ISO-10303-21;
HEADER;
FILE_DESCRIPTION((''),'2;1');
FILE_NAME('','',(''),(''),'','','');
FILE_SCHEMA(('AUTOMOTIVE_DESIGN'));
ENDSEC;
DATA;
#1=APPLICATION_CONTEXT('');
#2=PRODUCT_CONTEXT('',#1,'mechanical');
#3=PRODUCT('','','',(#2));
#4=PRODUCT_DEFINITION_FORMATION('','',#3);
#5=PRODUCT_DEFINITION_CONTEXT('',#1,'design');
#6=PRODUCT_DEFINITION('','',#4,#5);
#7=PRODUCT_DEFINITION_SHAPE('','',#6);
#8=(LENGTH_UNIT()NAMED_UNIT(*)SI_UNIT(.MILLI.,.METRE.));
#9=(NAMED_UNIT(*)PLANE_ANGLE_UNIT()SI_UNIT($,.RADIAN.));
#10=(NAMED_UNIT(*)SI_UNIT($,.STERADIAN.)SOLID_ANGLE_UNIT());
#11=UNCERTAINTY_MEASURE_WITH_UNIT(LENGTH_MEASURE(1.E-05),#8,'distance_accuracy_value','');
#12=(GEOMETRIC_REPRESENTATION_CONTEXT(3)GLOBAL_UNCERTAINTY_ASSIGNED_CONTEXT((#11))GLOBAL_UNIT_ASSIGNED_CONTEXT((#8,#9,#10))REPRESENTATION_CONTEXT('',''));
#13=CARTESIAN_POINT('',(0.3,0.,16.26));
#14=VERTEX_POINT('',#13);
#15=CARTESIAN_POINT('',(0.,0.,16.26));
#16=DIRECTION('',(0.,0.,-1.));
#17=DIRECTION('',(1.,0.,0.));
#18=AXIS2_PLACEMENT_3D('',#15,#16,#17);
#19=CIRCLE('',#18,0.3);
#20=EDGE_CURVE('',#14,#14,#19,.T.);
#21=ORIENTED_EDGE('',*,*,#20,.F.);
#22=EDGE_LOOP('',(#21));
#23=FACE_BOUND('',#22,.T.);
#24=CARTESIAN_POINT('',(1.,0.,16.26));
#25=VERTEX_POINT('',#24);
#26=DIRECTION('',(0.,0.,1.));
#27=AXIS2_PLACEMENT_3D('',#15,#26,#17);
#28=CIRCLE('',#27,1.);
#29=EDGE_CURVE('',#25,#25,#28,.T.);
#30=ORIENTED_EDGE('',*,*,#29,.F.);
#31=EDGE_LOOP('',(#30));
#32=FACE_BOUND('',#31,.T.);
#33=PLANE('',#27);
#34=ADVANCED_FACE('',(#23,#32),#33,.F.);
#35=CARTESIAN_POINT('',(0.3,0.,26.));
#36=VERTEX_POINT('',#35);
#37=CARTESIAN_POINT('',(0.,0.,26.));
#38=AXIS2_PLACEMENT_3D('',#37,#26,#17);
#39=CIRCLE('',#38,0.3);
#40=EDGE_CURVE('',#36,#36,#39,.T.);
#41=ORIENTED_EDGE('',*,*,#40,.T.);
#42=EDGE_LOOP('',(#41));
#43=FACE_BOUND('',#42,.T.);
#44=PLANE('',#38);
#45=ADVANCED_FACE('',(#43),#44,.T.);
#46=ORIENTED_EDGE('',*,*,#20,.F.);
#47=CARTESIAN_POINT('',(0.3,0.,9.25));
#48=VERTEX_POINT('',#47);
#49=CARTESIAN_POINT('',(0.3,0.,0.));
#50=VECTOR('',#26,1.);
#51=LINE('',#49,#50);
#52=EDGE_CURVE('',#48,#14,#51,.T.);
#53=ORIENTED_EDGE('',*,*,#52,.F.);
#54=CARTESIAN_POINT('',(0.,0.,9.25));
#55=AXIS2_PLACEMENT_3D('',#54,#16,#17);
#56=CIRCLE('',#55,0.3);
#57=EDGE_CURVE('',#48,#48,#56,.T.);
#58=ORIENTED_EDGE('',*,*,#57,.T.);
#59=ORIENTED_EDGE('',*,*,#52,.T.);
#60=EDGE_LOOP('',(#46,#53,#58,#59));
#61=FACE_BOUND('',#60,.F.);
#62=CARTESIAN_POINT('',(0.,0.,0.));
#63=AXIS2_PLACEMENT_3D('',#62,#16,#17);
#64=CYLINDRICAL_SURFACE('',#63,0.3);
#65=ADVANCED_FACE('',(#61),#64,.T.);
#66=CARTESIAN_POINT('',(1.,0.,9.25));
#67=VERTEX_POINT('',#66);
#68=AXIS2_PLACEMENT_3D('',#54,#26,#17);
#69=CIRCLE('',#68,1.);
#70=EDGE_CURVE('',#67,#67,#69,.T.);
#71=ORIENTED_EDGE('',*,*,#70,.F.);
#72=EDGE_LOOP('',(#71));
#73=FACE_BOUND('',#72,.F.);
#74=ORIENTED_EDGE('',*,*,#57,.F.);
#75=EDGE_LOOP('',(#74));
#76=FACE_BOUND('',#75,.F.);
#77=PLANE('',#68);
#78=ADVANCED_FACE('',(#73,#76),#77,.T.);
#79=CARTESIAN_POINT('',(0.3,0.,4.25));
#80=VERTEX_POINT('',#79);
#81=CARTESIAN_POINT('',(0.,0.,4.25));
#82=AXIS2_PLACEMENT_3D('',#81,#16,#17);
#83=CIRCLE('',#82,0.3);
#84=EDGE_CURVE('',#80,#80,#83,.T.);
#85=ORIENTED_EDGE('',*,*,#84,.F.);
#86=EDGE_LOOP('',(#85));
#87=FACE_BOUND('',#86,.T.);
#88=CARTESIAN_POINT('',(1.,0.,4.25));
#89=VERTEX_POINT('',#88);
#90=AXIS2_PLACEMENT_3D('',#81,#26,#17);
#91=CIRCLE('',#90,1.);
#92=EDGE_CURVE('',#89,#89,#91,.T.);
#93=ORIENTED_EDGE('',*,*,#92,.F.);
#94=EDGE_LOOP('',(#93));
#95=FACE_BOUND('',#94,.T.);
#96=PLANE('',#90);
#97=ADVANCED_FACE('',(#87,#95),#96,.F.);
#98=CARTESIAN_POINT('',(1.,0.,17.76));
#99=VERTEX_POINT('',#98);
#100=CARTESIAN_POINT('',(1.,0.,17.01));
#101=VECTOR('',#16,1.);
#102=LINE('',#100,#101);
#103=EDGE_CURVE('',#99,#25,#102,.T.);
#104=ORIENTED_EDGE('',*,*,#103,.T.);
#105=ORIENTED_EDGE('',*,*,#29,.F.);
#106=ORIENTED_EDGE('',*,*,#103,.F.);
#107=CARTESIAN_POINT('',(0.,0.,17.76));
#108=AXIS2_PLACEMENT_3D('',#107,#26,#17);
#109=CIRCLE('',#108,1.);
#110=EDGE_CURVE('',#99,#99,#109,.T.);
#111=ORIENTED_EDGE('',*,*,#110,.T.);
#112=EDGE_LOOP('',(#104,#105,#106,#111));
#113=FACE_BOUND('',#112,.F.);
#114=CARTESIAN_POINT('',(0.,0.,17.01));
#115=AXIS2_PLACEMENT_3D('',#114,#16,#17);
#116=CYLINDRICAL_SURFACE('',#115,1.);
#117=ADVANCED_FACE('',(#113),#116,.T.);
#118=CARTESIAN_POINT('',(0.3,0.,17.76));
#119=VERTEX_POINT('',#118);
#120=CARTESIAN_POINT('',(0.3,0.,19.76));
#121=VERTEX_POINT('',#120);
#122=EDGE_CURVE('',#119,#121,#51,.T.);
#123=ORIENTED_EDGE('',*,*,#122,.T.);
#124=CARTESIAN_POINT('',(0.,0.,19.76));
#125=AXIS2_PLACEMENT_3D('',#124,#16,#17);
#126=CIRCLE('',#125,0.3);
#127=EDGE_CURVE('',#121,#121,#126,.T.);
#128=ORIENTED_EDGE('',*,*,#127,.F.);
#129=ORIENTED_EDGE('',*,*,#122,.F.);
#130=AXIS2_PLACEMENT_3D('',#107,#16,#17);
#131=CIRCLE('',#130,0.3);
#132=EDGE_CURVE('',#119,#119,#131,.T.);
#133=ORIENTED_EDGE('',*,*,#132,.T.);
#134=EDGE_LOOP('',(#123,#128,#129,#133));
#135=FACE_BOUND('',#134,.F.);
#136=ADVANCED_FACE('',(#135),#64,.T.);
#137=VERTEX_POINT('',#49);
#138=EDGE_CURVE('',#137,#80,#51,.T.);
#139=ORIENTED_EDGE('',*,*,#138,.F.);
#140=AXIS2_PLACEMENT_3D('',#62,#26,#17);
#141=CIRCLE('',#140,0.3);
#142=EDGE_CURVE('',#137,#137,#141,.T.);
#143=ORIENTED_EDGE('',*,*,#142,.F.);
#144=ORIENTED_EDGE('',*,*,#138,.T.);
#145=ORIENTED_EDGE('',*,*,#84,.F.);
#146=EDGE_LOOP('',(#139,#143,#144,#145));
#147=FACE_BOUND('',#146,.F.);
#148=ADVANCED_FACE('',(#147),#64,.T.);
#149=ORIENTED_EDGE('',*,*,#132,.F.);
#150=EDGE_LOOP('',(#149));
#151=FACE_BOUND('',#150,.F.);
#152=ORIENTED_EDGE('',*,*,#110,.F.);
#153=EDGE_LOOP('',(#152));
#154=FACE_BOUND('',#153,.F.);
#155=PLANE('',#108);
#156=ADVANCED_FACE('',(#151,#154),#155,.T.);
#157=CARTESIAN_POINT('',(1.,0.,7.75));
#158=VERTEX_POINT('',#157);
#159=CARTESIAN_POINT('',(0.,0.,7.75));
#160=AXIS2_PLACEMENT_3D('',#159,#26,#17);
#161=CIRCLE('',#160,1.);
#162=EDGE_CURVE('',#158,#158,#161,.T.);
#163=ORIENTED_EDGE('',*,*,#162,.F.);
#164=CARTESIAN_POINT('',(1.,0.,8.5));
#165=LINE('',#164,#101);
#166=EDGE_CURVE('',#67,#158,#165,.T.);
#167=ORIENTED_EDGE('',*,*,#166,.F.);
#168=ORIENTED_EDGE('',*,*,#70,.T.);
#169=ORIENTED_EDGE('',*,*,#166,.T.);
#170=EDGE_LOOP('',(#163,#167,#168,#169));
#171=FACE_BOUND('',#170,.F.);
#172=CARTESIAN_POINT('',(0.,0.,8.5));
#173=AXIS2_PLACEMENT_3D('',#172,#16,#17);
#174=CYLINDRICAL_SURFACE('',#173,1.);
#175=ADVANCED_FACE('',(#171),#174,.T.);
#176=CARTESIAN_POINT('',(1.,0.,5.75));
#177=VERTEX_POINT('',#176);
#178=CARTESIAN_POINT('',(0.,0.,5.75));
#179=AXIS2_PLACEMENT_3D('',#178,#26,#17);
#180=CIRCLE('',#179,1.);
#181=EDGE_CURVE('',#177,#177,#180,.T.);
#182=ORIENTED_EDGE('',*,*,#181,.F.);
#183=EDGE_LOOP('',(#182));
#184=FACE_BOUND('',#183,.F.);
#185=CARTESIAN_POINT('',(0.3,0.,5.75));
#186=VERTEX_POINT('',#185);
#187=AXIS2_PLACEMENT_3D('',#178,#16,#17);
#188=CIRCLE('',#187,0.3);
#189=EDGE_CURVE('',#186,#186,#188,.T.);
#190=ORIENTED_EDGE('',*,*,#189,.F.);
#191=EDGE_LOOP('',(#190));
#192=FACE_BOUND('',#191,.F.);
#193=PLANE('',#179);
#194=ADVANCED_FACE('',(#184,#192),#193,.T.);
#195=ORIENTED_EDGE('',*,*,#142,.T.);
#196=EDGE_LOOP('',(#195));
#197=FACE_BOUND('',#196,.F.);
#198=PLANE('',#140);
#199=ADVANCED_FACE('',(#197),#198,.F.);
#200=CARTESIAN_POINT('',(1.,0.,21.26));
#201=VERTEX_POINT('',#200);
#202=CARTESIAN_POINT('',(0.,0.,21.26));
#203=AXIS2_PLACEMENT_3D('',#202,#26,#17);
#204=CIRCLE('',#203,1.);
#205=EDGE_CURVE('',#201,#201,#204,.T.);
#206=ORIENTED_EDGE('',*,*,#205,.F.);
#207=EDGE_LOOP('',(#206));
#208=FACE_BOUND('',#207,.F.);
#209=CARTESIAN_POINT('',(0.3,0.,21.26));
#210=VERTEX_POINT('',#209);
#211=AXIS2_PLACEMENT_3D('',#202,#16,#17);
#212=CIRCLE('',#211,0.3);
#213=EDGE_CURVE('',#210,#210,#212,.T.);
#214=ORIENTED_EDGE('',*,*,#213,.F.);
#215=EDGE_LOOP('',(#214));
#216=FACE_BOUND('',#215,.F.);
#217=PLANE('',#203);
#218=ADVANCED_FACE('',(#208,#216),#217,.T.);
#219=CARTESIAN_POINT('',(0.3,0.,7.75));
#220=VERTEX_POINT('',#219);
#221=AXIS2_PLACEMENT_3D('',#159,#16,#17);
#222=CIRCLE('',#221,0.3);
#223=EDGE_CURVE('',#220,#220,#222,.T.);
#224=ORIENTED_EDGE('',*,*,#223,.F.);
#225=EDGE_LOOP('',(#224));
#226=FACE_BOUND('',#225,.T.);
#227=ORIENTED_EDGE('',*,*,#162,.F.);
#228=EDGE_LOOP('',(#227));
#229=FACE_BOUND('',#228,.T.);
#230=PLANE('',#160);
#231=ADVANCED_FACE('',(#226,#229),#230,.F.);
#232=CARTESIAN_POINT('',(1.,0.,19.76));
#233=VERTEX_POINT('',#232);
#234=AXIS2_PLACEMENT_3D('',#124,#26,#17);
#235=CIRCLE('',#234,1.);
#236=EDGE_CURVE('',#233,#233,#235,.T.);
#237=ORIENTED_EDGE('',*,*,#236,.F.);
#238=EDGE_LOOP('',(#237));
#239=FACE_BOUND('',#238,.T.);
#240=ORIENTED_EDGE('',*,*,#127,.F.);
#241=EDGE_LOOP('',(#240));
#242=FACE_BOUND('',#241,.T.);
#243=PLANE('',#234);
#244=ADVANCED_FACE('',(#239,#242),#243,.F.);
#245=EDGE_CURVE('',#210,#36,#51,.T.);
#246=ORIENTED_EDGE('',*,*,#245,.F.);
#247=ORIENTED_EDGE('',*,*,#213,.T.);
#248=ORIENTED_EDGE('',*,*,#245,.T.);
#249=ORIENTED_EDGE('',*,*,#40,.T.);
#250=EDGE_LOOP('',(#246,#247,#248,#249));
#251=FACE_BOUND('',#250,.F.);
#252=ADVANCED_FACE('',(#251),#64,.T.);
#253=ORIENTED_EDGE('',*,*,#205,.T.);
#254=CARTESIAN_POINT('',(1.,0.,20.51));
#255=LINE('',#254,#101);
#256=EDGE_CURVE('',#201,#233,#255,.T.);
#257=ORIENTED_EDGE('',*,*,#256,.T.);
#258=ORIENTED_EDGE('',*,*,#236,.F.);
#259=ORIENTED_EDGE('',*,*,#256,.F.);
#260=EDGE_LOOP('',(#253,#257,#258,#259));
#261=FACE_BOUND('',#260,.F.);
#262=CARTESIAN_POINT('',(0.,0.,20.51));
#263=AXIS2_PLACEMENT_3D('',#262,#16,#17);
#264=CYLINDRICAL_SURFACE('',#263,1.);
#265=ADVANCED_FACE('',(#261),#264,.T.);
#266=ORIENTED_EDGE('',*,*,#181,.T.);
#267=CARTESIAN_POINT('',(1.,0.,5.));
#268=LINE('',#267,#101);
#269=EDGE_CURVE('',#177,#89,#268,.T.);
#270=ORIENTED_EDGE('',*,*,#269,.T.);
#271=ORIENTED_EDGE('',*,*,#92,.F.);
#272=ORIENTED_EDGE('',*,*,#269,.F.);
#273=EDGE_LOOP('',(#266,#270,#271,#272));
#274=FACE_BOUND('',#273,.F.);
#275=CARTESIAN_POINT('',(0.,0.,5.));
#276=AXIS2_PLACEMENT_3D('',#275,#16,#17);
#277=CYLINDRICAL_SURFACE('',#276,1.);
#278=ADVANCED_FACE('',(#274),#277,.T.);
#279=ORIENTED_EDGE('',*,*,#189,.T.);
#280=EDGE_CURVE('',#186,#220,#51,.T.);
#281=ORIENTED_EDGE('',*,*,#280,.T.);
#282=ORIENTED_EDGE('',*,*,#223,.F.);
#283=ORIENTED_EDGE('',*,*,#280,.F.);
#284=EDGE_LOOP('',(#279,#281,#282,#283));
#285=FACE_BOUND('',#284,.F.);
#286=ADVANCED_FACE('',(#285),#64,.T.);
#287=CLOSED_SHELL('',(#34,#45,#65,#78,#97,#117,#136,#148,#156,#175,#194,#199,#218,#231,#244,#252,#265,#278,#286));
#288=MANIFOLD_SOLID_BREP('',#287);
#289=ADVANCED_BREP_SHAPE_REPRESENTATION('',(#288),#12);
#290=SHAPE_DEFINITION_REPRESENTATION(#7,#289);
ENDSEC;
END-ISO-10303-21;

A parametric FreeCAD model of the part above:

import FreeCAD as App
import Part
import Sketcher


def add_polygon(sketch, points):
    """Adds a closed chain of lines whose ends are joined by coincident constraints."""
    first, n = sketch.GeometryCount, len(points)
    for a, b in zip(points, points[1:] + points[:1]):
        sketch.addGeometry(Part.LineSegment(App.Vector(*a, 0), App.Vector(*b, 0)), False)
    for i in range(n):
        sketch.addConstraint(Sketcher.Constraint("Coincident", first + i, 2, first + (i + 1) % n, 1))

doc = App.newDocument("Part")
body = doc.addObject("PartDesign::Body", "Body")

sketch1 = body.newObject("Sketcher::SketchObject", "Sketch")
sketch1.AttachmentSupport = (doc.getObject("XY_Plane"), [""])
sketch1.MapMode = "FlatFace"
sketch1.addGeometry(Part.Circle(App.Vector(0, 0, 0), App.Vector(0, 0, 1), 0.3), False)
sketch1.addConstraint(Sketcher.Constraint("Coincident", 0, 3, -1, 1))
sketch1.addConstraint(Sketcher.Constraint("Diameter", 0, 0.6))
pad1 = body.newObject("PartDesign::Pad", "Pad")
pad1.Profile = sketch1
pad1.Length = 26

sketch2 = body.newObject("Sketcher::SketchObject", "Sketch001")
sketch2.AttachmentSupport = (doc.getObject("XZ_Plane"), [""])
sketch2.MapMode = "FlatFace"
add_polygon(sketch2, [(0, 4.25), (0, 5.75), (1, 5.75), (1, 4.25)])
add_polygon(sketch2, [(0, 7.75), (0, 9.25), (1, 9.25), (1, 7.75)])
add_polygon(sketch2, [(0, 16.26), (0, 17.76), (1, 17.76), (1, 16.26)])
add_polygon(sketch2, [(0, 19.76), (0, 21.26), (1, 21.26), (1, 19.76)])
sketch2.addConstraint(Sketcher.Constraint("Vertical", 0))
sketch2.addConstraint(Sketcher.Constraint("Horizontal", 1))
sketch2.addConstraint(Sketcher.Constraint("Vertical", 2))
sketch2.addConstraint(Sketcher.Constraint("Horizontal", 3))
sketch2.addConstraint(Sketcher.Constraint("Vertical", 4))
sketch2.addConstraint(Sketcher.Constraint("Horizontal", 5))
sketch2.addConstraint(Sketcher.Constraint("Vertical", 6))
sketch2.addConstraint(Sketcher.Constraint("Horizontal", 7))
sketch2.addConstraint(Sketcher.Constraint("Vertical", 8))
sketch2.addConstraint(Sketcher.Constraint("Horizontal", 9))
sketch2.addConstraint(Sketcher.Constraint("Vertical", 10))
sketch2.addConstraint(Sketcher.Constraint("Horizontal", 11))
sketch2.addConstraint(Sketcher.Constraint("Vertical", 12))
sketch2.addConstraint(Sketcher.Constraint("Horizontal", 13))
sketch2.addConstraint(Sketcher.Constraint("Vertical", 14))
sketch2.addConstraint(Sketcher.Constraint("Horizontal", 15))
sketch2.addConstraint(Sketcher.Constraint("PointOnObject", 0, 2, -2))
sketch2.addConstraint(Sketcher.Constraint("PointOnObject", 4, 2, -2))
sketch2.addConstraint(Sketcher.Constraint("PointOnObject", 8, 2, -2))
sketch2.addConstraint(Sketcher.Constraint("PointOnObject", 12, 2, -2))
sketch2.addConstraint(Sketcher.Constraint("Vertical", 2, 2, 5, 2))
sketch2.addConstraint(Sketcher.Constraint("Vertical", 6, 2, 9, 2))
sketch2.addConstraint(Sketcher.Constraint("Vertical", 10, 2, 13, 2))
sketch2.addConstraint(Sketcher.Constraint("Equal", 2, 4))
sketch2.addConstraint(Sketcher.Constraint("Equal", 6, 8))
sketch2.addConstraint(Sketcher.Constraint("Equal", 10, 12))
sketch2.addConstraint(Sketcher.Constraint("DistanceX", 1, 1, 1, 2, 1.0))
sketch2.addConstraint(Sketcher.Constraint("DistanceY", 0, 1, 0, 2, 1.5))
sketch2.addConstraint(Sketcher.Constraint("DistanceY", 3, 2, 4, 2, 5.0))
sketch2.addConstraint(Sketcher.Constraint("DistanceY", 11, 2, 12, 2, 5.0))
sketch2.addConstraint(Sketcher.Constraint("DistanceY", -1, 1, 0, 2, 5.75))
sketch2.addConstraint(Sketcher.Constraint("DistanceY", -1, 1, 8, 2, 17.76))
revolution = body.newObject("PartDesign::Revolution", "Revolution")
revolution.Profile = sketch2
revolution.ReferenceAxis = (sketch2, ["V_Axis"])
revolution.Angle = 360

doc.recompute()
